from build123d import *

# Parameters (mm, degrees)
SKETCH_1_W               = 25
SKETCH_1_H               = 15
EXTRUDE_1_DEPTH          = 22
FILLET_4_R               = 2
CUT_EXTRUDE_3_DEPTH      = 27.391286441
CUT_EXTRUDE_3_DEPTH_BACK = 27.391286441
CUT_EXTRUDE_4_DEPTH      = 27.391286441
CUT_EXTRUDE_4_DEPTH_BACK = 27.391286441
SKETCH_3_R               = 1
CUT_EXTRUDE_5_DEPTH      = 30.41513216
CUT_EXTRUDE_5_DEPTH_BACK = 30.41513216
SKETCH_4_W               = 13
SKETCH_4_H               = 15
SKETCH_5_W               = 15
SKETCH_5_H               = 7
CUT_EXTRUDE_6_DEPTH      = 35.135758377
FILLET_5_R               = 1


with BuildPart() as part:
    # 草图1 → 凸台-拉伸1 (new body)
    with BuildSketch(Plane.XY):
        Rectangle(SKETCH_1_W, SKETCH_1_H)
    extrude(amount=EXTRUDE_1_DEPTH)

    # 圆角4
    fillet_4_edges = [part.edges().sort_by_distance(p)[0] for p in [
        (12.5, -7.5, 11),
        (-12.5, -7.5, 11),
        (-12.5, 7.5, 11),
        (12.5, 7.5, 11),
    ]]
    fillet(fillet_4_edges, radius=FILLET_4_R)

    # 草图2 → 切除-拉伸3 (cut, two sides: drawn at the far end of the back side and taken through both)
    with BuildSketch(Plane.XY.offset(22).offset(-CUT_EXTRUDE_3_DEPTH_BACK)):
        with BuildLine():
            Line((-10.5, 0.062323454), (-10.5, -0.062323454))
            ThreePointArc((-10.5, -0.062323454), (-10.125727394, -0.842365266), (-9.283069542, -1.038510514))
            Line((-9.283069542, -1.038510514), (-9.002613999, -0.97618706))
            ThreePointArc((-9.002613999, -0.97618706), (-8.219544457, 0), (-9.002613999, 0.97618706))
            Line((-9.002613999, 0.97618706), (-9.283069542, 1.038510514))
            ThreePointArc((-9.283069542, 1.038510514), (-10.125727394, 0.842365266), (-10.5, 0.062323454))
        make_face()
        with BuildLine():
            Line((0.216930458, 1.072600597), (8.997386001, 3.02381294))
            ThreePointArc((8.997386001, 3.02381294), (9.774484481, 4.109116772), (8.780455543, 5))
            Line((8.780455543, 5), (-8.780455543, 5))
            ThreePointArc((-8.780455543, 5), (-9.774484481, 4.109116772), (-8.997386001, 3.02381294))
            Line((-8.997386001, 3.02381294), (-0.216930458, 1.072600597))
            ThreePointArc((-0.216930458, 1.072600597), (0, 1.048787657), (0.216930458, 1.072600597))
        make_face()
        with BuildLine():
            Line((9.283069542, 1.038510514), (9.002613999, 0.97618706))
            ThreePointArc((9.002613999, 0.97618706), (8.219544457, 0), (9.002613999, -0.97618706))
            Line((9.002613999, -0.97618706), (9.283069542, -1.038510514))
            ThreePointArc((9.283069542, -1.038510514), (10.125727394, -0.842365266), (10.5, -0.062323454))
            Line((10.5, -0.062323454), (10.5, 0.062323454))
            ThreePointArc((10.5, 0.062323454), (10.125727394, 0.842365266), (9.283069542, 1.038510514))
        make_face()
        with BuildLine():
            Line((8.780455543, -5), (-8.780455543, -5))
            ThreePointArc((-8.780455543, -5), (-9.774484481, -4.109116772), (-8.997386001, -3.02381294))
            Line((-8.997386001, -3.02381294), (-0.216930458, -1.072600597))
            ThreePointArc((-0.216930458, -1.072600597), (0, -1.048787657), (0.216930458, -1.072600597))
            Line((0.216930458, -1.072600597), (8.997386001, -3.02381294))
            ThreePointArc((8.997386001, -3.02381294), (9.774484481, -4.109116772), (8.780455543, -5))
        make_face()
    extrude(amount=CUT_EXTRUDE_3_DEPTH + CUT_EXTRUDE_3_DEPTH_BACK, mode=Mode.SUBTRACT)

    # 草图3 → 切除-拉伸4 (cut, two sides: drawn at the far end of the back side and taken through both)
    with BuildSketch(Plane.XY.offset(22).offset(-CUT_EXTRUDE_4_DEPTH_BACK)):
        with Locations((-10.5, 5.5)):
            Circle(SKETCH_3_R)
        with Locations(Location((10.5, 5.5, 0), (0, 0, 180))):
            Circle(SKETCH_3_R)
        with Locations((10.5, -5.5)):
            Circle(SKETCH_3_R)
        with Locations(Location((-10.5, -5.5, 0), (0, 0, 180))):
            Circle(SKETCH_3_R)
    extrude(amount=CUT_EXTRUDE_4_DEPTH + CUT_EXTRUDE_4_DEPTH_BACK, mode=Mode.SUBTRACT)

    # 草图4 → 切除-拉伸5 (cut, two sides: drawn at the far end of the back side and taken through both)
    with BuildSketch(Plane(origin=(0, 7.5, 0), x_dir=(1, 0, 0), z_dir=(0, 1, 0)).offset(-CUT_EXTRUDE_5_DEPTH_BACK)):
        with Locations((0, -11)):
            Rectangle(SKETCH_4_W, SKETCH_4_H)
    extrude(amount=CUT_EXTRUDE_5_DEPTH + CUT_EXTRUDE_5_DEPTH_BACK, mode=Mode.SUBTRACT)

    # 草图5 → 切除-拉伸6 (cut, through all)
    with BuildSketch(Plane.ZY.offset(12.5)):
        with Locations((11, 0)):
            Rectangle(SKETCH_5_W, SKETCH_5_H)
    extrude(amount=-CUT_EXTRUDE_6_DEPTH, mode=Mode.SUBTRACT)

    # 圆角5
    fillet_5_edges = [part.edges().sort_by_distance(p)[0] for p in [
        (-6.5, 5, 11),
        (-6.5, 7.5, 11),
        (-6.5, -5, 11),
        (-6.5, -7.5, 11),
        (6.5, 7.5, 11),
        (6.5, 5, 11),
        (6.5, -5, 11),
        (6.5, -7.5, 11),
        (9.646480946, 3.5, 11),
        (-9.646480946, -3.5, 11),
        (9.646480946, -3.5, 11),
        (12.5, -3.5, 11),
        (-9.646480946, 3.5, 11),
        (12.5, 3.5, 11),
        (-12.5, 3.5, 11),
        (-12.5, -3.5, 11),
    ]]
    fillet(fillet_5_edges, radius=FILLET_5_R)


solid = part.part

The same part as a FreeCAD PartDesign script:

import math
import FreeCAD as App
import Part
import Sketcher


def edges_at(feature, points):
    """Names of the edges that pass closest to the given points."""
    edges = feature.Shape.Edges
    near = lambda p: min(range(len(edges)), key=lambda i: edges[i].distToShape(Part.Vertex(*p))[0])
    return sorted({f"Edge{near(p) + 1}" for p in points})

doc = App.newDocument("Part")
params = doc.addObject("Spreadsheet::Sheet", "Params")
for row, (alias, value) in enumerate([
    ("sketch1_width", "25 mm"),
    ("sketch1_height", "15 mm"),
    ("pad1_length", "22 mm"),
    ("fillet_radius", "2 mm"),
    ("sketch2_radius", "1 mm"),
    ("sketch3_diameter", "2 mm"),
    ("sketch4_width", "13 mm"),
    ("sketch4_height", "15 mm"),
    ("sketch5_width", "7 mm"),
    ("sketch5_height", "15 mm"),
    ("fillet2_radius", "1 mm"),
], start=1):
    params.set(f"A{row}", alias)
    params.set(f"B{row}", "=" + value)
    params.setAlias(f"B{row}", alias)

body = doc.addObject("PartDesign::Body", "Body")

# Sketch on XY plane
sketch1 = body.newObject("Sketcher::SketchObject", "Sketch")
sketch1.AttachmentSupport = (doc.getObject("XY_Plane"), [""])
sketch1.MapMode = "FlatFace"
sketch1.addGeometry([
    Part.LineSegment(App.Vector(-12.5, 7.5, 0), App.Vector(-12.5, -7.5, 0)),
    Part.LineSegment(App.Vector(-12.5, -7.5, 0), App.Vector(12.5, -7.5, 0)),
    Part.LineSegment(App.Vector(12.5, -7.5, 0), App.Vector(12.5, 7.5, 0)),
    Part.LineSegment(App.Vector(12.5, 7.5, 0), App.Vector(-12.5, 7.5, 0)),
], False)
sketch1.addConstraint([
    Sketcher.Constraint("Coincident", 0, 2, 1, 1),
    Sketcher.Constraint("Coincident", 1, 2, 2, 1),
    Sketcher.Constraint("Coincident", 2, 2, 3, 1),
    Sketcher.Constraint("Coincident", 3, 2, 0, 1),
    Sketcher.Constraint("Vertical", 0),
    Sketcher.Constraint("Horizontal", 1),
    Sketcher.Constraint("Vertical", 2),
    Sketcher.Constraint("Horizontal", 3),
    Sketcher.Constraint("Symmetric", 0, 2, 2, 2, -1, 1),
    Sketcher.Constraint("DistanceX", 1, 1, 1, 2, 25.0),
    Sketcher.Constraint("DistanceY", 0, 2, 0, 1, 15.0),
])
sketch1.setExpression("Constraints[9]", "Params.sketch1_width")
sketch1.setExpression("Constraints[10]", "Params.sketch1_height")
pad1 = body.newObject("PartDesign::Pad", "Pad")
pad1.Profile = sketch1
pad1.setExpression("Length", "Params.pad1_length")
doc.recompute()

fillet = body.newObject("PartDesign::Fillet", "Fillet")
fillet.Base = (pad1, edges_at(pad1, [
    (12.5, -7.5, 11),
    (-12.5, -7.5, 11),
    (-12.5, 7.5, 11),
    (12.5, 7.5, 11),
]))
fillet.setExpression("Radius", "Params.fillet_radius")

# Sketch on XY plane
sketch2 = body.newObject("Sketcher::SketchObject", "Sketch001")
sketch2.AttachmentSupport = (doc.getObject("XY_Plane"), [""])
sketch2.MapMode = "FlatFace"
sketch2.AttachmentOffset = App.Placement(App.Vector(0, 0, 22), App.Rotation())
sketch2.addGeometry([
    Part.LineSegment(App.Vector(-10.5, 0.062323, 0), App.Vector(-10.5, -0.062323, 0)),  # 0
    Part.ArcOfCircle(Part.Circle(App.Vector(-9.5, -0.062323, 0), App.Vector(0, 0, 1), 1), math.radians(180), math.radians(282.528808)),  # 1
    Part.LineSegment(App.Vector(-9.28307, -1.038511, 0), App.Vector(-9.002614, -0.976187, 0)),  # 2
    Part.ArcOfCircle(Part.Circle(App.Vector(-9.219544, 0, 0), App.Vector(0, 0, 1), 1), math.radians(-77.471192), math.radians(77.471192)),  # 3
    Part.LineSegment(App.Vector(-9.002614, 0.976187, 0), App.Vector(-9.28307, 1.038511, 0)),  # 4
    Part.ArcOfCircle(Part.Circle(App.Vector(-9.5, 0.062323, 0), App.Vector(0, 0, 1), 1), math.radians(77.471192), math.radians(180)),  # 5
    Part.LineSegment(App.Vector(0.21693, 1.072601, 0), App.Vector(8.997386, 3.023813, 0)),  # 6
    Part.ArcOfCircle(Part.Circle(App.Vector(8.780456, 4, 0), App.Vector(0, 0, 1), 1), math.radians(-77.471192), math.radians(90)),  # 7
    Part.LineSegment(App.Vector(8.780456, 5, 0), App.Vector(-8.780456, 5, 0)),  # 8
    Part.ArcOfCircle(Part.Circle(App.Vector(-8.780456, 4, 0), App.Vector(0, 0, 1), 1), math.radians(90), math.radians(257.471192)),  # 9
    Part.LineSegment(App.Vector(-8.997386, 3.023813, 0), App.Vector(-0.21693, 1.072601, 0)),  # 10
    Part.ArcOfCircle(Part.Circle(App.Vector(0, 2.048788, 0), App.Vector(0, 0, 1), 1), math.radians(-102.528808), math.radians(-77.471192)),  # 11
    Part.LineSegment(App.Vector(9.28307, 1.038511, 0), App.Vector(9.002614, 0.976187, 0)),  # 12
    Part.ArcOfCircle(Part.Circle(App.Vector(9.219544, 0, 0), App.Vector(0, 0, 1), 1), math.radians(102.528808), math.radians(257.471192)),  # 13
    Part.LineSegment(App.Vector(9.002614, -0.976187, 0), App.Vector(9.28307, -1.038511, 0)),  # 14
    Part.ArcOfCircle(Part.Circle(App.Vector(9.5, -0.062323, 0), App.Vector(0, 0, 1), 1), math.radians(-102.528808), math.radians(0)),  # 15
    Part.LineSegment(App.Vector(10.5, -0.062323, 0), App.Vector(10.5, 0.062323, 0)),  # 16
    Part.ArcOfCircle(Part.Circle(App.Vector(9.5, 0.062323, 0), App.Vector(0, 0, 1), 1), math.radians(0), math.radians(102.528808)),  # 17
    Part.LineSegment(App.Vector(-8.780456, -5, 0), App.Vector(8.780456, -5, 0)),  # 18
    Part.ArcOfCircle(Part.Circle(App.Vector(8.780456, -4, 0), App.Vector(0, 0, 1), 1), math.radians(-90), math.radians(77.471192)),  # 19
    Part.LineSegment(App.Vector(8.997386, -3.023813, 0), App.Vector(0.21693, -1.072601, 0)),  # 20
    Part.ArcOfCircle(Part.Circle(App.Vector(0, -2.048788, 0), App.Vector(0, 0, 1), 1), math.radians(77.471192), math.radians(102.528808)),  # 21
    Part.LineSegment(App.Vector(-0.21693, -1.072601, 0), App.Vector(-8.997386, -3.023813, 0)),  # 22
    Part.ArcOfCircle(Part.Circle(App.Vector(-8.780456, -4, 0), App.Vector(0, 0, 1), 1), math.radians(102.528808), math.radians(270)),  # 23
], False)
sketch2.addConstraint([
    Sketcher.Constraint("Tangent", 0, 2, 1, 1),
    Sketcher.Constraint("Tangent", 1, 2, 2, 1),
    Sketcher.Constraint("Tangent", 2, 2, 3, 1),
    Sketcher.Constraint("Tangent", 3, 2, 4, 1),
    Sketcher.Constraint("Tangent", 4, 2, 5, 1),
    Sketcher.Constraint("Tangent", 5, 2, 0, 1),
    Sketcher.Constraint("Tangent", 6, 2, 7, 1),
    Sketcher.Constraint("Tangent", 7, 2, 8, 1),
    Sketcher.Constraint("Tangent", 8, 2, 9, 1),
    Sketcher.Constraint("Tangent", 9, 2, 10, 1),
    Sketcher.Constraint("Tangent", 10, 2, 11, 1),
    Sketcher.Constraint("Tangent", 11, 2, 6, 1),
    Sketcher.Constraint("Tangent", 12, 2, 13, 1),
    Sketcher.Constraint("Tangent", 13, 2, 14, 1),
    Sketcher.Constraint("Tangent", 14, 2, 15, 1),
    Sketcher.Constraint("Tangent", 15, 2, 16, 1),
    Sketcher.Constraint("Tangent", 16, 2, 17, 1),
    Sketcher.Constraint("Tangent", 17, 2, 12, 1),
    Sketcher.Constraint("Tangent", 18, 2, 19, 1),
    Sketcher.Constraint("Tangent", 19, 2, 20, 1),
    Sketcher.Constraint("Tangent", 20, 2, 21, 1),
    Sketcher.Constraint("Tangent", 21, 2, 22, 1),
    Sketcher.Constraint("Tangent", 22, 2, 23, 1),
    Sketcher.Constraint("Tangent", 23, 2, 18, 1),
    Sketcher.Constraint("Vertical", 0),
    Sketcher.Constraint("Horizontal", 8),
    Sketcher.Constraint("Vertical", 16),
    Sketcher.Constraint("Horizontal", 18),
    Sketcher.Constraint("Equal", 1, 3),
    Sketcher.Constraint("Equal", 3, 5),
    Sketcher.Constraint("Equal", 5, 7),
    Sketcher.Constraint("Equal", 7, 9),
    Sketcher.Constraint("Equal", 9, 11),
    Sketcher.Constraint("Equal", 11, 13),
    Sketcher.Constraint("Equal", 13, 15),
    Sketcher.Constraint("Equal", 15, 17),
    Sketcher.Constraint("Equal", 17, 19),
    Sketcher.Constraint("Equal", 19, 21),
    Sketcher.Constraint("Equal", 21, 23),
    Sketcher.Constraint("Symmetric", 3, 3, 13, 3, -1, 1),
    Sketcher.Constraint("Symmetric", 5, 3, 15, 3, -1, 1),
    Sketcher.Constraint("Symmetric", 9, 3, 19, 3, -1, 1),
    Sketcher.Constraint("Symmetric", 11, 3, 21, 3, -1, 1),
    Sketcher.Constraint("Symmetric", 6, 2, 9, 2, -2),
    Sketcher.Constraint("Symmetric", 3, 2, 12, 2, -2),
    Sketcher.Constraint("Parallel", 2, 6),
    Sketcher.Constraint("Parallel", 4, 10),
    Sketcher.Constraint("Parallel", 12, 22),
    Sketcher.Constraint("Radius", 1, 1.0),
    Sketcher.Constraint("DistanceY", -1, 1, 7, 3, 4.0),
    Sketcher.Constraint("DistanceX", 3, 3, 7, 3, 18.0),
    Sketcher.Constraint("DistanceX", 1, 3, -1, 1, 9.5),
    Sketcher.Constraint("DistanceX", 8, 2, 8, 1, 17.560911),
    Sketcher.Constraint("DistanceY", -1, 1, 10, 2, 1.072601),
])
sketch2.setExpression("Constraints[48]", "Params.sketch2_radius")
pocket1 = body.newObject("PartDesign::Pocket", "Pocket")
pocket1.Profile = sketch2
pocket1.Type = "ThroughAll"
pocket1.Midplane = True

# Sketch on XY plane
sketch3 = body.newObject("Sketcher::SketchObject", "Sketch002")
sketch3.AttachmentSupport = (doc.getObject("XY_Plane"), [""])
sketch3.MapMode = "FlatFace"
sketch3.AttachmentOffset = App.Placement(App.Vector(0, 0, 22), App.Rotation())
sketch3.addGeometry([
    Part.Circle(App.Vector(-10.5, 5.5, 0), App.Vector(0, 0, 1), 1),
    Part.Circle(App.Vector(10.5, 5.5, 0), App.Vector(0, 0, 1), 1),
    Part.Circle(App.Vector(10.5, -5.5, 0), App.Vector(0, 0, 1), 1),
    Part.Circle(App.Vector(-10.5, -5.5, 0), App.Vector(0, 0, 1), 1),
], False)
sketch3.addConstraint([
    Sketcher.Constraint("Equal", 0, 1),
    Sketcher.Constraint("Equal", 1, 2),
    Sketcher.Constraint("Equal", 2, 3),
    Sketcher.Constraint("Symmetric", 0, 3, 2, 3, -1, 1),
    Sketcher.Constraint("Symmetric", 1, 3, 3, 3, -1, 1),
    Sketcher.Constraint("Symmetric", 0, 3, 1, 3, -2),
    Sketcher.Constraint("Diameter", 0, 2.0),
    Sketcher.Constraint("DistanceX", 0, 3, 1, 3, 21.0),
    Sketcher.Constraint("DistanceY", 2, 3, 1, 3, 11.0),
])
sketch3.setExpression("Constraints[6]", "Params.sketch3_diameter")
pocket2 = body.newObject("PartDesign::Pocket", "Pocket001")
pocket2.Profile = sketch3
pocket2.Type = "ThroughAll"
pocket2.Midplane = True

# Sketch on XZ plane
sketch4 = body.newObject("Sketcher::SketchObject", "Sketch003")
sketch4.AttachmentSupport = (doc.getObject("XZ_Plane"), [""])
sketch4.MapMode = "FlatFace"
sketch4.AttachmentOffset = App.Placement(App.Vector(0, 0, -7.5), App.Rotation())
sketch4.addGeometry([
    Part.LineSegment(App.Vector(-6.5, 3.5, 0), App.Vector(-6.5, 18.5, 0)),
    Part.LineSegment(App.Vector(-6.5, 18.5, 0), App.Vector(6.5, 18.5, 0)),
    Part.LineSegment(App.Vector(6.5, 18.5, 0), App.Vector(6.5, 3.5, 0)),
    Part.LineSegment(App.Vector(6.5, 3.5, 0), App.Vector(-6.5, 3.5, 0)),
], False)
sketch4.addConstraint([
    Sketcher.Constraint("Coincident", 0, 2, 1, 1),
    Sketcher.Constraint("Coincident", 1, 2, 2, 1),
    Sketcher.Constraint("Coincident", 2, 2, 3, 1),
    Sketcher.Constraint("Coincident", 3, 2, 0, 1),
    Sketcher.Constraint("Vertical", 0),
    Sketcher.Constraint("Horizontal", 1),
    Sketcher.Constraint("Vertical", 2),
    Sketcher.Constraint("Horizontal", 3),
    Sketcher.Constraint("DistanceX", 1, 1, 1, 2, 13.0),
    Sketcher.Constraint("DistanceY", 0, 1, 0, 2, 15.0),
    Sketcher.Constraint("DistanceX", 0, 2, -1, 1, 6.5),
    Sketcher.Constraint("DistanceY", -1, 1, 0, 2, 18.5),
])
sketch4.setExpression("Constraints[8]", "Params.sketch4_width")
sketch4.setExpression("Constraints[9]", "Params.sketch4_height")
pocket3 = body.newObject("PartDesign::Pocket", "Pocket002")
pocket3.Profile = sketch4
pocket3.Type = "ThroughAll"
pocket3.Midplane = True

# Sketch on YZ plane
sketch5 = body.newObject("Sketcher::SketchObject", "Sketch004")
sketch5.AttachmentSupport = (doc.getObject("YZ_Plane"), [""])
sketch5.MapMode = "FlatFace"
sketch5.AttachmentOffset = App.Placement(App.Vector(0, 0, -12.5), App.Rotation())
sketch5.addGeometry([
    Part.LineSegment(App.Vector(3.5, 3.5, 0), App.Vector(-3.5, 3.5, 0)),
    Part.LineSegment(App.Vector(-3.5, 3.5, 0), App.Vector(-3.5, 18.5, 0)),
    Part.LineSegment(App.Vector(-3.5, 18.5, 0), App.Vector(3.5, 18.5, 0)),
    Part.LineSegment(App.Vector(3.5, 18.5, 0), App.Vector(3.5, 3.5, 0)),
], False)
sketch5.addConstraint([
    Sketcher.Constraint("Coincident", 0, 2, 1, 1),
    Sketcher.Constraint("Coincident", 1, 2, 2, 1),
    Sketcher.Constraint("Coincident", 2, 2, 3, 1),
    Sketcher.Constraint("Coincident", 3, 2, 0, 1),
    Sketcher.Constraint("Horizontal", 0),
    Sketcher.Constraint("Vertical", 1),
    Sketcher.Constraint("Horizontal", 2),
    Sketcher.Constraint("Vertical", 3),
    Sketcher.Constraint("DistanceX", 0, 2, 0, 1, 7.0),
    Sketcher.Constraint("DistanceY", 1, 1, 1, 2, 15.0),
    Sketcher.Constraint("DistanceX", 0, 2, -1, 1, 3.5),
    Sketcher.Constraint("DistanceY", -1, 1, 0, 2, 3.5),
])
sketch5.setExpression("Constraints[8]", "Params.sketch5_width")
sketch5.setExpression("Constraints[9]", "Params.sketch5_height")
pocket4 = body.newObject("PartDesign::Pocket", "Pocket003")
pocket4.Profile = sketch5
pocket4.Type = "ThroughAll"
pocket4.Reversed = True
doc.recompute()

fillet2 = body.newObject("PartDesign::Fillet", "Fillet001")
fillet2.Base = (pocket4, edges_at(pocket4, [
    (-6.5, 5, 11),
    (-6.5, 7.5, 11),
    (-6.5, -5, 11),
    (-6.5, -7.5, 11),
    (6.5, 7.5, 11),
    (6.5, 5, 11),
    (6.5, -5, 11),
    (6.5, -7.5, 11),
    (9.646, 3.5, 11),
    (-9.646, -3.5, 11),
    (9.646, -3.5, 11),
    (12.5, -3.5, 11),
    (-9.646, 3.5, 11),
    (12.5, 3.5, 11),
    (-12.5, 3.5, 11),
    (-12.5, -3.5, 11),
]))
fillet2.setExpression("Radius", "Params.fillet2_radius")

doc.recompute()
